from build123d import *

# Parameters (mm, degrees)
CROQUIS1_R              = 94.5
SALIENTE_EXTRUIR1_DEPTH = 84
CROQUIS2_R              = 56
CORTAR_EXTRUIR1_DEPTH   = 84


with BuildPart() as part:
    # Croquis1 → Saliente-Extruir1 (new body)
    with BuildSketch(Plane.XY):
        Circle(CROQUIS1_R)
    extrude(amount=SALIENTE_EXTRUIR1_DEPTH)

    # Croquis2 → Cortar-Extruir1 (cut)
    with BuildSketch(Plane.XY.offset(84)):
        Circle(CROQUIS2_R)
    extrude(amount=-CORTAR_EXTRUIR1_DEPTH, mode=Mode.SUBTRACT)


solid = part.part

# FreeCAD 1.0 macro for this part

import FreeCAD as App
import Part
import Sketcher

V = App.Vector
Q = App.Units.Quantity

doc = App.newDocument("Part")
body = doc.addObject("PartDesign::Body", "Body")

sketch1 = doc.addObject("Sketcher::SketchObject", "Sketch")
body.addObject(sketch1)
sketch1.AttachmentSupport = (doc.XY_Plane, [""])
sketch1.MapMode = "FlatFace"
sketch1.addGeometry(Part.Circle(V(0, 0, 0), V(0, 0, 1), 94), False)
sketch1.addConstraint(Sketcher.Constraint("Coincident", 0, 3, -1, 1))
sketch1.addConstraint(Sketcher.Constraint("Diameter", 0, Q("189 mm")))
pad1 = doc.addObject("PartDesign::Pad", "Pad")
body.addObject(pad1)
pad1.Profile = sketch1
pad1.Length = 84

sketch2 = doc.addObject("Sketcher::SketchObject", "Sketch001")
body.addObject(sketch2)
sketch2.AttachmentSupport = (doc.XY_Plane, [""])
sketch2.MapMode = "FlatFace"
sketch2.AttachmentOffset = App.Placement(V(0, 0, 84), App.Rotation())
sketch2.addGeometry(Part.Circle(V(0, 0, 0), V(0, 0, 1), 56), False)
sketch2.addConstraint(Sketcher.Constraint("Coincident", 0, 3, -1, 1))
sketch2.addConstraint(Sketcher.Constraint("Diameter", 0, Q("112 mm")))
pocket1 = doc.addObject("PartDesign::Pocket", "Pocket")
body.addObject(pocket1)
pocket1.Profile = sketch2
pocket1.Length = 84

doc.recompute()
